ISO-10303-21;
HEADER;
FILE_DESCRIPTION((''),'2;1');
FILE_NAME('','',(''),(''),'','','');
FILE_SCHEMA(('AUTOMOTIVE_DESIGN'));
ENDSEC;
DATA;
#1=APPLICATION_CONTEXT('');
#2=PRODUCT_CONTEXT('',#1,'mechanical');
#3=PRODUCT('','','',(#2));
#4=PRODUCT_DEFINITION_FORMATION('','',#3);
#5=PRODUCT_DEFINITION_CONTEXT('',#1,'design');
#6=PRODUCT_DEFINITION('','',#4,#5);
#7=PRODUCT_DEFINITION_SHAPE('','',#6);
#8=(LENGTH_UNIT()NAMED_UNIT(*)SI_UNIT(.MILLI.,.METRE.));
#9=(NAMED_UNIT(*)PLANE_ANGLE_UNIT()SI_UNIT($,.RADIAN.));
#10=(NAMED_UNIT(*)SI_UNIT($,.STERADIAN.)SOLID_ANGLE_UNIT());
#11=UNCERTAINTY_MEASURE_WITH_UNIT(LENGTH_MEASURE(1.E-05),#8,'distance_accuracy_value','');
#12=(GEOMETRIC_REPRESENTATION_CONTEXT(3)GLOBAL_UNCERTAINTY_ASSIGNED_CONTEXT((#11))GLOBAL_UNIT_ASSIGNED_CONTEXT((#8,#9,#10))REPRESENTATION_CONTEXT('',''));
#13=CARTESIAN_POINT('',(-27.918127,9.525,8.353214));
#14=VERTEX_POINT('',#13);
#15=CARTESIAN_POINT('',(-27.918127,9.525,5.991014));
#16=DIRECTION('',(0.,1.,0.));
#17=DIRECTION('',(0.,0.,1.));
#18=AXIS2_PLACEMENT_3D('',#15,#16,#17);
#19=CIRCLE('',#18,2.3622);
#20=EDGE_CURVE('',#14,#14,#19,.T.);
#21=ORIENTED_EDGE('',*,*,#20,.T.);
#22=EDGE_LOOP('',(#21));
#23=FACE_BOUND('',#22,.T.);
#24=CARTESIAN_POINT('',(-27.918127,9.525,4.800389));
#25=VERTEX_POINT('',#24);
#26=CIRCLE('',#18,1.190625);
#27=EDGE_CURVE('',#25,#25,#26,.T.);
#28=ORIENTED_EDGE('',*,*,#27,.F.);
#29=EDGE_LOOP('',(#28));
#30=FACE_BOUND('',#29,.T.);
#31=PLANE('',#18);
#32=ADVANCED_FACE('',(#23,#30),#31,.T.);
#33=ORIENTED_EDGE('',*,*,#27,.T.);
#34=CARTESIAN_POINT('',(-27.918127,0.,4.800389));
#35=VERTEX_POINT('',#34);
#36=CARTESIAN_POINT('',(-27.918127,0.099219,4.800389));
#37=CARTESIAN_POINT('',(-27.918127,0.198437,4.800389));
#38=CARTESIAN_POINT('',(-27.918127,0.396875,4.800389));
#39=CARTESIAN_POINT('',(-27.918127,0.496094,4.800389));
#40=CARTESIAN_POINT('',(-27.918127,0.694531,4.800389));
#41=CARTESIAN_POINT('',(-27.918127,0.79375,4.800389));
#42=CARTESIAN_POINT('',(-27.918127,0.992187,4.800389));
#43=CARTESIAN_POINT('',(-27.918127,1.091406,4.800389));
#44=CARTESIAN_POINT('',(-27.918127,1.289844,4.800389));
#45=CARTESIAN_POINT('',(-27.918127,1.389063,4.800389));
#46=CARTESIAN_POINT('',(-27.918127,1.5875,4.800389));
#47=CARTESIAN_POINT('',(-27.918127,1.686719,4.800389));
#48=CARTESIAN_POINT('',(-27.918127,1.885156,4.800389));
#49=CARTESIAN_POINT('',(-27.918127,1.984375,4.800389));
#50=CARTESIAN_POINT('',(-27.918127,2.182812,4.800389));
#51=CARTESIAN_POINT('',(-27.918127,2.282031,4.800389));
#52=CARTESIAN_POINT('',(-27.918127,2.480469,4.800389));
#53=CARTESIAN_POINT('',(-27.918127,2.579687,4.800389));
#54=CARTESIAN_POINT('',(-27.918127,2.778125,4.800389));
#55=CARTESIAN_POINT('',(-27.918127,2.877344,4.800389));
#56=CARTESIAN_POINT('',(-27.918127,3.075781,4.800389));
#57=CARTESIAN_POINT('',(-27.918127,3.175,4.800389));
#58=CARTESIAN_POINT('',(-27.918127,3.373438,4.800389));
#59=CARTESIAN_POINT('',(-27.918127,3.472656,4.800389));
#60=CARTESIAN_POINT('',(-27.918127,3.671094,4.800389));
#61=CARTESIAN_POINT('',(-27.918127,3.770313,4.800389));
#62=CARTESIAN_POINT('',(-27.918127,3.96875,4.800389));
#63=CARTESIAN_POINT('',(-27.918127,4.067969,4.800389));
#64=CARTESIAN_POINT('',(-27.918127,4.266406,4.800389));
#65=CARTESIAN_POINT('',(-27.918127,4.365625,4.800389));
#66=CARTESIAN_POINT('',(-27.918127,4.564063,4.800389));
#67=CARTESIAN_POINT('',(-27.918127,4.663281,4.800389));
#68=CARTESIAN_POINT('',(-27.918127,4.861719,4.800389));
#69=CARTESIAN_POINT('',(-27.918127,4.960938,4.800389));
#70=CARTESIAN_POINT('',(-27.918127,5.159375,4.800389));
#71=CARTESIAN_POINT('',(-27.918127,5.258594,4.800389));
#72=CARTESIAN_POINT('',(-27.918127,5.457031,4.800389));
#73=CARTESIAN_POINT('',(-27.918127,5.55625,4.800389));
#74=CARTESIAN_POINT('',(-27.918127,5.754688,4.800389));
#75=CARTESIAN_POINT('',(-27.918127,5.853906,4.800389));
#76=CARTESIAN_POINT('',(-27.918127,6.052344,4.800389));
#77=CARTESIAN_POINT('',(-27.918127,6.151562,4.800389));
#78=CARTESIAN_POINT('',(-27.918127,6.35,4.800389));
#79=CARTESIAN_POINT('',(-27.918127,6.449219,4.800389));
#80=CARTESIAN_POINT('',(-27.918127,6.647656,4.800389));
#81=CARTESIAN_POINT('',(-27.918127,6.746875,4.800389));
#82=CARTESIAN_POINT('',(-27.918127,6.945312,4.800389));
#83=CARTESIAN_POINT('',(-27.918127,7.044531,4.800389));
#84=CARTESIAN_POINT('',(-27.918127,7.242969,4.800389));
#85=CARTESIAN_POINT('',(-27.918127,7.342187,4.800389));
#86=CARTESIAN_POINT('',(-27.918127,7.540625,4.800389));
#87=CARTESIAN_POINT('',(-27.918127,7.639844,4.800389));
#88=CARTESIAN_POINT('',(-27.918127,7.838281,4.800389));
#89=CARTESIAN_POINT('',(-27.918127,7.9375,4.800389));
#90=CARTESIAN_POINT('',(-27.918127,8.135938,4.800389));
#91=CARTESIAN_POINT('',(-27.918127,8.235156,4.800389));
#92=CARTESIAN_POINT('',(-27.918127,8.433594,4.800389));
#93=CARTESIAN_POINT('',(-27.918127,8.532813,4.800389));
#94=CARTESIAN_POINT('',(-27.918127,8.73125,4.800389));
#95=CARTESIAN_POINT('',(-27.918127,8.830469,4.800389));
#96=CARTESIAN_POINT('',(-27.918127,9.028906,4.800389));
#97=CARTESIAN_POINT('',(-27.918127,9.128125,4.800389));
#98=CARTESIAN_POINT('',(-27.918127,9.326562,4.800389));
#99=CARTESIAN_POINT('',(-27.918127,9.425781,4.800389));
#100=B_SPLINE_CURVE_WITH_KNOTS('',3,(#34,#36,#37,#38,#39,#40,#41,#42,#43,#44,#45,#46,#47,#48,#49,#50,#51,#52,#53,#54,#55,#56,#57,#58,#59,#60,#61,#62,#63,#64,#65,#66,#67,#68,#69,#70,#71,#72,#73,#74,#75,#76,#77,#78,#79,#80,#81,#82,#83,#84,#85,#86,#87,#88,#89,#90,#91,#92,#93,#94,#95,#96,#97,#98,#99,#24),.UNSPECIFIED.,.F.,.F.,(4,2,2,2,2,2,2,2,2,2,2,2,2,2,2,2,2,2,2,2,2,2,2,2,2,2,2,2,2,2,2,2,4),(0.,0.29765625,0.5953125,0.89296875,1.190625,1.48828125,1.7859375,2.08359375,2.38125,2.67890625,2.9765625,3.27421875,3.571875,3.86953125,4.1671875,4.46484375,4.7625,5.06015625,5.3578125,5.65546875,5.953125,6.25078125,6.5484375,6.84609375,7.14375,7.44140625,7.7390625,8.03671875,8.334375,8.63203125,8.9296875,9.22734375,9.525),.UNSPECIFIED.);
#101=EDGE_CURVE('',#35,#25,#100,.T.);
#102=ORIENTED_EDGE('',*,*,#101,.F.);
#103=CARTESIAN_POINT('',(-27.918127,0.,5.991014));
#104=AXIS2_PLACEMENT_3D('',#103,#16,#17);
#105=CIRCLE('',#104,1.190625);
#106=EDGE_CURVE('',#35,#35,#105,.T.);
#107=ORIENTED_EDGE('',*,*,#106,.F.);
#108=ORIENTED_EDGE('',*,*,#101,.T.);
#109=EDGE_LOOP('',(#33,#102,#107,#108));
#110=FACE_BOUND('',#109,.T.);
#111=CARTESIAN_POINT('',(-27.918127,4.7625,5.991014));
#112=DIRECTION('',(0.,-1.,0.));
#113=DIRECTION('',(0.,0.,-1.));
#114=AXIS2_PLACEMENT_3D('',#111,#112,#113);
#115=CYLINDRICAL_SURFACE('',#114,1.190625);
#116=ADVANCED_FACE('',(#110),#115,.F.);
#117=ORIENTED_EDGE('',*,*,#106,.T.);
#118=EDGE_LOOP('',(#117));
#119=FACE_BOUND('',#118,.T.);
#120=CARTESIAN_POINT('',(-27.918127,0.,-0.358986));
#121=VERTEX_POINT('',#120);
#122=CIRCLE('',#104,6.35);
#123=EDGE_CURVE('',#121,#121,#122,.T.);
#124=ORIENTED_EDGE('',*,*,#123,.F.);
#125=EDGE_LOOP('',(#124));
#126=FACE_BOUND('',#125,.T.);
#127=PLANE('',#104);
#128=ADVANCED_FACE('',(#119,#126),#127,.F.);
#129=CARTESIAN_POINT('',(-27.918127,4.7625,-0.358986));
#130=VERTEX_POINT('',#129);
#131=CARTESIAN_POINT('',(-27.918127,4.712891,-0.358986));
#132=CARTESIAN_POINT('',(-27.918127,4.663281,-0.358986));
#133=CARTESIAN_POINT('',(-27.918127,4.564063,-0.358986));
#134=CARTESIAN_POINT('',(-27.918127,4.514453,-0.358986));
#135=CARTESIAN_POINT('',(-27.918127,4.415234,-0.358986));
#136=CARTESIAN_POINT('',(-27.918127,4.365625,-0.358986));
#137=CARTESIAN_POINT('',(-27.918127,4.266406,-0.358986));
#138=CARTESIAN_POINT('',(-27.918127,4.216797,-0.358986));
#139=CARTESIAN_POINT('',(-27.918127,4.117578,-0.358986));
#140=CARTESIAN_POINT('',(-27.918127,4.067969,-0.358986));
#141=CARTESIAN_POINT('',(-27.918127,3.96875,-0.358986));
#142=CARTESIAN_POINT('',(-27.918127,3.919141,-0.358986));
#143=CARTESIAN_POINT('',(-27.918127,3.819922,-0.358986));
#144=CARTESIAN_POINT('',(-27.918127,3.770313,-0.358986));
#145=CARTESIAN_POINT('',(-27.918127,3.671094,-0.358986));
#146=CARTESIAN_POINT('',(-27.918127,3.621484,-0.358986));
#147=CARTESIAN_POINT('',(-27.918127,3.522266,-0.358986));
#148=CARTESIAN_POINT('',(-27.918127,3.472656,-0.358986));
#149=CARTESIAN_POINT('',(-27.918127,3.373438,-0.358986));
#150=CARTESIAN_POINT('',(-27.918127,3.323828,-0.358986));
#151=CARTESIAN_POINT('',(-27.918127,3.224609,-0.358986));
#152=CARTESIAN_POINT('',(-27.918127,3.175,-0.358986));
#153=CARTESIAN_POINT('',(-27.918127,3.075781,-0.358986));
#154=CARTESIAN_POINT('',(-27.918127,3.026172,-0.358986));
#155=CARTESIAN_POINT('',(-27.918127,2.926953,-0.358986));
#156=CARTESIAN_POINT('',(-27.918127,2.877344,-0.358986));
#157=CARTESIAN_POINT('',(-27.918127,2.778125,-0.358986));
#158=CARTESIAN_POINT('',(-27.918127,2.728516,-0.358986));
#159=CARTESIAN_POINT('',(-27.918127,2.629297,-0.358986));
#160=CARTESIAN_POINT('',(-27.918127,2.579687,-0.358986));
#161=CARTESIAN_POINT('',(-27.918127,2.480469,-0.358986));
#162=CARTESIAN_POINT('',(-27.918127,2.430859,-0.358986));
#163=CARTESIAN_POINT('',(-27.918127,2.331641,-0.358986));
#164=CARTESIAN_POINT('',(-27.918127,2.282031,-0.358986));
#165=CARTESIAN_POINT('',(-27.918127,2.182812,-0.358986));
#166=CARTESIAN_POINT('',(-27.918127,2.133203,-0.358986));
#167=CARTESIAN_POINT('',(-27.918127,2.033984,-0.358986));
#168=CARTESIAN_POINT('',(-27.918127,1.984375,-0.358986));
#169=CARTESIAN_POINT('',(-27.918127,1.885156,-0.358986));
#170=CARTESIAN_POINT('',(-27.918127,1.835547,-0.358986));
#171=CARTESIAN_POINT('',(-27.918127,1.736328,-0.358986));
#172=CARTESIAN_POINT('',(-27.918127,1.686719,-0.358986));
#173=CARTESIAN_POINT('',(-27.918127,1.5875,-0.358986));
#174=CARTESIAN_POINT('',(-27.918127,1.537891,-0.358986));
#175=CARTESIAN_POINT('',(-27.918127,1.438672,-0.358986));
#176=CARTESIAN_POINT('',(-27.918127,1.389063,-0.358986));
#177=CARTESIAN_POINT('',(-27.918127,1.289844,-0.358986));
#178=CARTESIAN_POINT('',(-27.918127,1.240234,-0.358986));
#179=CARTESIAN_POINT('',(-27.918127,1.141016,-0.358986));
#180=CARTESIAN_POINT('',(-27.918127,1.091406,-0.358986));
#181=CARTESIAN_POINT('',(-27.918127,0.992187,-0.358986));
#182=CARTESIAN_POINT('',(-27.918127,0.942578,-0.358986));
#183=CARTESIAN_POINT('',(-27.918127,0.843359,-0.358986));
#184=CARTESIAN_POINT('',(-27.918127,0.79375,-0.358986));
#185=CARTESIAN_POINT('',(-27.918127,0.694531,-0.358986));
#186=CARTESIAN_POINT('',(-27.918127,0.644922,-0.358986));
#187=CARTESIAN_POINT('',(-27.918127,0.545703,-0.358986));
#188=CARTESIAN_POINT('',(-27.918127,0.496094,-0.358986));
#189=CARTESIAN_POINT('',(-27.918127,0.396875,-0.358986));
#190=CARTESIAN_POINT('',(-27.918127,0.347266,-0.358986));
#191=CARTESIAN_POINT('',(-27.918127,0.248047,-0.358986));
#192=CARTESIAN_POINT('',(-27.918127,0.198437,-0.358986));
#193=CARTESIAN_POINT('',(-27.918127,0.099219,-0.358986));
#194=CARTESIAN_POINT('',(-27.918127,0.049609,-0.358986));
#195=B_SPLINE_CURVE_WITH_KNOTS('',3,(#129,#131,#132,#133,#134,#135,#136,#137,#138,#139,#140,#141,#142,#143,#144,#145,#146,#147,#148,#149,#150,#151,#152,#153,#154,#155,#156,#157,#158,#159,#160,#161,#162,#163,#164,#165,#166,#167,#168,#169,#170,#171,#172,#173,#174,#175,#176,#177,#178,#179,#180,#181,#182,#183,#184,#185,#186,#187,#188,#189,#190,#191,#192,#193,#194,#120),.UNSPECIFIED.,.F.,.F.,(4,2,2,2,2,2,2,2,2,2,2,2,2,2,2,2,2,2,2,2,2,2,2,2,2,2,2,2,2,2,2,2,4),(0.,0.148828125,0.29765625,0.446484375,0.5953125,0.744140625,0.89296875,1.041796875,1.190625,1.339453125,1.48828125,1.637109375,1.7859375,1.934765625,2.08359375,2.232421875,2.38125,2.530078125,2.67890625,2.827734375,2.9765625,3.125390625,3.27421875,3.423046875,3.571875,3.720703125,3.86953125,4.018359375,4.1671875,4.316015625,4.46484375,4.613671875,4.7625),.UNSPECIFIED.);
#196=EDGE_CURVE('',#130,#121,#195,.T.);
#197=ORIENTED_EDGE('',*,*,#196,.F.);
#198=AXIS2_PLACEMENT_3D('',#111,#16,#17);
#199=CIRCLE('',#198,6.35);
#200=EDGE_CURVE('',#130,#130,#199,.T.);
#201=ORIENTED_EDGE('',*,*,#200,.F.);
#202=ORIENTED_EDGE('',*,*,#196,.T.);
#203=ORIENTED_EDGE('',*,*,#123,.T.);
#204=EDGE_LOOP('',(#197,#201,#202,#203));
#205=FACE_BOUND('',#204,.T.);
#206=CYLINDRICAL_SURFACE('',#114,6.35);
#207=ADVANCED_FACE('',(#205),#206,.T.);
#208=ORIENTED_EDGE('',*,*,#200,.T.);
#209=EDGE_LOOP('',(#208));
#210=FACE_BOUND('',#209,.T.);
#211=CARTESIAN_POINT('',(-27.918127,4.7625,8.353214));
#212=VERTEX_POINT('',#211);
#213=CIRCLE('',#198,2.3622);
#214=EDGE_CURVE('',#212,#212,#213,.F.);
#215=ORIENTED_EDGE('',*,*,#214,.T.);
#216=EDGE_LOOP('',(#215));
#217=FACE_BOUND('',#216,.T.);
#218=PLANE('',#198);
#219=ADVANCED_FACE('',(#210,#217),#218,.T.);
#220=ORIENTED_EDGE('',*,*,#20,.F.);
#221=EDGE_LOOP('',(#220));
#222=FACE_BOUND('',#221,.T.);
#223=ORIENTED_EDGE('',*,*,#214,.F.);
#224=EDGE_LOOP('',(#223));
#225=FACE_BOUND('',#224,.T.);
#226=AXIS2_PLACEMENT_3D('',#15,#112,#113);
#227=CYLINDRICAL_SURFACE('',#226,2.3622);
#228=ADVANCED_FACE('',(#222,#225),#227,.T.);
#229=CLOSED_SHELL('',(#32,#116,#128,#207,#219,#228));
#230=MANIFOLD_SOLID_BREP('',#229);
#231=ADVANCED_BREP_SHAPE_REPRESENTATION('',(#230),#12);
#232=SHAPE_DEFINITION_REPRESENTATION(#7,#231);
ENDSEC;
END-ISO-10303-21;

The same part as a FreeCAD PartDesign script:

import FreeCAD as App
import Part
import Sketcher
from FreeCAD import Vector
Q = App.Units.Quantity

doc = App.newDocument("Part")
params = doc.addObject("Spreadsheet::Sheet", "Params")
for row, (alias, value) in enumerate([
    ("sketch1_diameter", "0.5 in"),
    ("sketch1_diameter2", "0.09375 in"),
    ("pad1_length", "0.1875 in"),
    ("sketch2_diameter", "0.186 in"),
    ("sketch2_diameter2", "0.09375 in"),
    ("pad2_length", "0.375 in"),
], start=1):
    params.set(f"A{row}", alias)
    params.set(f"B{row}", "=" + value)
    params.setAlias(f"B{row}", alias)

body = doc.addObject("PartDesign::Body", "Body")

# Sketch on XZ plane
sketch1 = body.newObject("Sketcher::SketchObject", "Sketch")
sketch1.AttachmentSupport = (doc.getObject("XZ_Plane"), [""])
sketch1.MapMode = "FlatFace"
sketch1.addGeometry([
    Part.Circle(Vector(-27.9, 6, 0), Vector(0, 0, 1), 6.3),
    Part.Circle(Vector(-27.9, 6, 0), Vector(0, 0, 1), 1.2),
], False)
sketch1.addConstraint([
    Sketcher.Constraint("Coincident", 1, 3, 0, 3),
    Sketcher.Constraint("Diameter", 0, Q("0.5 in")),
    Sketcher.Constraint("Diameter", 1, Q("0.09375 in")),
    Sketcher.Constraint("DistanceX", 0, 3, -1, 1, 27.918127),
    Sketcher.Constraint("DistanceY", -1, 1, 0, 3, 5.991014),
])
sketch1.setExpression("Constraints[1]", "Params.sketch1_diameter")
sketch1.setExpression("Constraints[2]", "Params.sketch1_diameter2")
pad1 = body.newObject("PartDesign::Pad", "Pad")
pad1.Profile = sketch1
pad1.setExpression("Length", "Params.pad1_length")
pad1.Reversed = True

# Sketch on XZ plane
sketch2 = body.newObject("Sketcher::SketchObject", "Sketch001")
sketch2.AttachmentSupport = (doc.getObject("XZ_Plane"), [""])
sketch2.MapMode = "FlatFace"
sketch2.addGeometry([
    Part.Circle(Vector(-27.9, 6, 0), Vector(0, 0, 1), 2.4),
    Part.Circle(Vector(-27.9, 6, 0), Vector(0, 0, 1), 1.2),
], False)
sketch2.addConstraint([
    Sketcher.Constraint("Coincident", 1, 3, 0, 3),
    Sketcher.Constraint("Diameter", 0, Q("0.186 in")),
    Sketcher.Constraint("Diameter", 1, Q("0.09375 in")),
    Sketcher.Constraint("DistanceX", 0, 3, -1, 1, 27.918127),
    Sketcher.Constraint("DistanceY", -1, 1, 0, 3, 5.991014),
])
sketch2.setExpression("Constraints[1]", "Params.sketch2_diameter")
sketch2.setExpression("Constraints[2]", "Params.sketch2_diameter2")
pad2 = body.newObject("PartDesign::Pad", "Pad001")
pad2.Profile = sketch2
pad2.setExpression("Length", "Params.pad2_length")
pad2.Reversed = True

doc.recompute()
